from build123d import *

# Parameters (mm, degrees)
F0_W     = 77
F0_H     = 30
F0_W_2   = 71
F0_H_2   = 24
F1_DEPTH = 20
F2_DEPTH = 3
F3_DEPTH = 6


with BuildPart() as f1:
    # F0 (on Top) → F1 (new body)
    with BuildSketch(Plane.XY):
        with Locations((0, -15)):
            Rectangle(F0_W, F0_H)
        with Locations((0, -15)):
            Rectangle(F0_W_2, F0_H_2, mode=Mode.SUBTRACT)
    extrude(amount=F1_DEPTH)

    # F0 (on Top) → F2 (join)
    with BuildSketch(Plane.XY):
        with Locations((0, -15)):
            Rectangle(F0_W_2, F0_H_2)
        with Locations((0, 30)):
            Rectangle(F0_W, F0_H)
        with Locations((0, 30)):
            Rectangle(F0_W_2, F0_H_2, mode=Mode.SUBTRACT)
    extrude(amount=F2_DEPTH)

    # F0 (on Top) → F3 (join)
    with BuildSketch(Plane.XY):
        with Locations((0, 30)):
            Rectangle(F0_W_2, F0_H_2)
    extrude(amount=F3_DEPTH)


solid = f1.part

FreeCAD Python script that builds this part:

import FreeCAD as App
import Part
import Sketcher

V = App.Vector
Q = App.Units.Quantity


def add_polygon(sketch, points):
    """Adds a closed chain of lines whose ends are joined by coincident constraints."""
    first, n = sketch.GeometryCount, len(points)
    for a, b in zip(points, points[1:] + points[:1]):
        sketch.addGeometry(Part.LineSegment(App.Vector(*a, 0), App.Vector(*b, 0)), False)
    for i in range(n):
        sketch.addConstraint(Sketcher.Constraint("Coincident", first + i, 2, first + (i + 1) % n, 1))

doc = App.newDocument("Part")
body = doc.addObject("PartDesign::Body", "Body")
body.AllowCompound = True

sketch1 = doc.addObject("Sketcher::SketchObject", "Sketch")
body.addObject(sketch1)
sketch1.AttachmentSupport = (doc.XY_Plane, [""])
sketch1.MapMode = "FlatFace"
add_polygon(sketch1, [(-38, 0), (-38, -30), (38, -30), (38, 0)])
add_polygon(sketch1, [(36, -27), (-36, -27), (-36, -3), (36, -3)])
sketch1.addConstraint(Sketcher.Constraint("Vertical", 0))
sketch1.addConstraint(Sketcher.Constraint("Horizontal", 1))
sketch1.addConstraint(Sketcher.Constraint("Vertical", 2))
sketch1.addConstraint(Sketcher.Constraint("Horizontal", 3))
sketch1.addConstraint(Sketcher.Constraint("Horizontal", 4))
sketch1.addConstraint(Sketcher.Constraint("Vertical", 5))
sketch1.addConstraint(Sketcher.Constraint("Horizontal", 6))
sketch1.addConstraint(Sketcher.Constraint("Vertical", 7))
sketch1.addConstraint(Sketcher.Constraint("Symmetric", 2, 2, 3, 2, -1, 1))
sketch1.addConstraint(Sketcher.Constraint("DistanceX", 1, 1, 1, 2, Q("77 mm")))
sketch1.addConstraint(Sketcher.Constraint("DistanceX", 4, 2, 4, 1, Q("71 mm")))
sketch1.addConstraint(Sketcher.Constraint("DistanceY", 0, 2, 0, 1, Q("30 mm")))
sketch1.addConstraint(Sketcher.Constraint("DistanceY", 5, 1, 5, 2, Q("24 mm")))
sketch1.addConstraint(Sketcher.Constraint("DistanceY", 4, 2, -1, 1, Q("27 mm")))
sketch1.addConstraint(Sketcher.Constraint("DistanceX", 0, 2, 4, 2, Q("3 mm")))
pad1 = doc.addObject("PartDesign::Pad", "Pad")
body.addObject(pad1)
pad1.Profile = sketch1
pad1.Length = 20

sketch2 = doc.addObject("Sketcher::SketchObject", "Sketch001")
body.addObject(sketch2)
sketch2.AttachmentSupport = (doc.XY_Plane, [""])
sketch2.MapMode = "FlatFace"
add_polygon(sketch2, [(-36, -3), (-36, -27), (36, -27), (36, -3)])
add_polygon(sketch2, [(-38, 45), (-38, 15), (38, 15), (38, 45)])
add_polygon(sketch2, [(36, 18), (-36, 18), (-36, 42), (36, 42)])
sketch2.addConstraint(Sketcher.Constraint("Vertical", 0))
sketch2.addConstraint(Sketcher.Constraint("Horizontal", 1))
sketch2.addConstraint(Sketcher.Constraint("Vertical", 2))
sketch2.addConstraint(Sketcher.Constraint("Horizontal", 3))
sketch2.addConstraint(Sketcher.Constraint("Vertical", 4))
sketch2.addConstraint(Sketcher.Constraint("Horizontal", 5))
sketch2.addConstraint(Sketcher.Constraint("Vertical", 6))
sketch2.addConstraint(Sketcher.Constraint("Horizontal", 7))
sketch2.addConstraint(Sketcher.Constraint("Horizontal", 8))
sketch2.addConstraint(Sketcher.Constraint("Vertical", 9))
sketch2.addConstraint(Sketcher.Constraint("Horizontal", 10))
sketch2.addConstraint(Sketcher.Constraint("Vertical", 11))
sketch2.addConstraint(Sketcher.Constraint("Vertical", 3, 2, 8, 2))
sketch2.addConstraint(Sketcher.Constraint("Vertical", 2, 2, 10, 2))
sketch2.addConstraint(Sketcher.Constraint("Equal", 2, 9))
sketch2.addConstraint(Sketcher.Constraint("DistanceX", 1, 1, 1, 2, Q("71 mm")))
sketch2.addConstraint(Sketcher.Constraint("DistanceX", 5, 1, 5, 2, Q("77 mm")))
sketch2.addConstraint(Sketcher.Constraint("DistanceY", 0, 2, 0, 1, Q("24 mm")))
sketch2.addConstraint(Sketcher.Constraint("DistanceY", 4, 2, 4, 1, Q("30 mm")))
sketch2.addConstraint(Sketcher.Constraint("DistanceY", 0, 2, -1, 1, Q("27 mm")))
sketch2.addConstraint(Sketcher.Constraint("DistanceY", -1, 1, 4, 2, Q("15 mm")))
sketch2.addConstraint(Sketcher.Constraint("DistanceY", -1, 1, 8, 2, Q("18 mm")))
sketch2.addConstraint(Sketcher.Constraint("DistanceX", 4, 2, 3, 2, Q("3 mm")))
sketch2.addConstraint(Sketcher.Constraint("DistanceX", 0, 2, -1, 1, Q("35.5 mm")))
pad2 = doc.addObject("PartDesign::Pad", "Pad001")
body.addObject(pad2)
pad2.Profile = sketch2
pad2.Length = 3

sketch3 = doc.addObject("Sketcher::SketchObject", "Sketch002")
body.addObject(sketch3)
sketch3.AttachmentSupport = (doc.XY_Plane, [""])
sketch3.MapMode = "FlatFace"
add_polygon(sketch3, [(-36, 42), (-36, 18), (36, 18), (36, 42)])
sketch3.addConstraint(Sketcher.Constraint("Vertical", 0))
sketch3.addConstraint(Sketcher.Constraint("Horizontal", 1))
sketch3.addConstraint(Sketcher.Constraint("Vertical", 2))
sketch3.addConstraint(Sketcher.Constraint("Horizontal", 3))
sketch3.addConstraint(Sketcher.Constraint("DistanceX", 1, 1, 1, 2, Q("71 mm")))
sketch3.addConstraint(Sketcher.Constraint("DistanceY", 0, 2, 0, 1, Q("24 mm")))
sketch3.addConstraint(Sketcher.Constraint("DistanceY", -1, 1, 0, 2, Q("18 mm")))
sketch3.addConstraint(Sketcher.Constraint("DistanceX", 0, 2, -1, 1, Q("35.5 mm")))
pad3 = doc.addObject("PartDesign::Pad", "Pad002")
body.addObject(pad3)
pad3.Profile = sketch3
pad3.Length = 6

doc.recompute()
